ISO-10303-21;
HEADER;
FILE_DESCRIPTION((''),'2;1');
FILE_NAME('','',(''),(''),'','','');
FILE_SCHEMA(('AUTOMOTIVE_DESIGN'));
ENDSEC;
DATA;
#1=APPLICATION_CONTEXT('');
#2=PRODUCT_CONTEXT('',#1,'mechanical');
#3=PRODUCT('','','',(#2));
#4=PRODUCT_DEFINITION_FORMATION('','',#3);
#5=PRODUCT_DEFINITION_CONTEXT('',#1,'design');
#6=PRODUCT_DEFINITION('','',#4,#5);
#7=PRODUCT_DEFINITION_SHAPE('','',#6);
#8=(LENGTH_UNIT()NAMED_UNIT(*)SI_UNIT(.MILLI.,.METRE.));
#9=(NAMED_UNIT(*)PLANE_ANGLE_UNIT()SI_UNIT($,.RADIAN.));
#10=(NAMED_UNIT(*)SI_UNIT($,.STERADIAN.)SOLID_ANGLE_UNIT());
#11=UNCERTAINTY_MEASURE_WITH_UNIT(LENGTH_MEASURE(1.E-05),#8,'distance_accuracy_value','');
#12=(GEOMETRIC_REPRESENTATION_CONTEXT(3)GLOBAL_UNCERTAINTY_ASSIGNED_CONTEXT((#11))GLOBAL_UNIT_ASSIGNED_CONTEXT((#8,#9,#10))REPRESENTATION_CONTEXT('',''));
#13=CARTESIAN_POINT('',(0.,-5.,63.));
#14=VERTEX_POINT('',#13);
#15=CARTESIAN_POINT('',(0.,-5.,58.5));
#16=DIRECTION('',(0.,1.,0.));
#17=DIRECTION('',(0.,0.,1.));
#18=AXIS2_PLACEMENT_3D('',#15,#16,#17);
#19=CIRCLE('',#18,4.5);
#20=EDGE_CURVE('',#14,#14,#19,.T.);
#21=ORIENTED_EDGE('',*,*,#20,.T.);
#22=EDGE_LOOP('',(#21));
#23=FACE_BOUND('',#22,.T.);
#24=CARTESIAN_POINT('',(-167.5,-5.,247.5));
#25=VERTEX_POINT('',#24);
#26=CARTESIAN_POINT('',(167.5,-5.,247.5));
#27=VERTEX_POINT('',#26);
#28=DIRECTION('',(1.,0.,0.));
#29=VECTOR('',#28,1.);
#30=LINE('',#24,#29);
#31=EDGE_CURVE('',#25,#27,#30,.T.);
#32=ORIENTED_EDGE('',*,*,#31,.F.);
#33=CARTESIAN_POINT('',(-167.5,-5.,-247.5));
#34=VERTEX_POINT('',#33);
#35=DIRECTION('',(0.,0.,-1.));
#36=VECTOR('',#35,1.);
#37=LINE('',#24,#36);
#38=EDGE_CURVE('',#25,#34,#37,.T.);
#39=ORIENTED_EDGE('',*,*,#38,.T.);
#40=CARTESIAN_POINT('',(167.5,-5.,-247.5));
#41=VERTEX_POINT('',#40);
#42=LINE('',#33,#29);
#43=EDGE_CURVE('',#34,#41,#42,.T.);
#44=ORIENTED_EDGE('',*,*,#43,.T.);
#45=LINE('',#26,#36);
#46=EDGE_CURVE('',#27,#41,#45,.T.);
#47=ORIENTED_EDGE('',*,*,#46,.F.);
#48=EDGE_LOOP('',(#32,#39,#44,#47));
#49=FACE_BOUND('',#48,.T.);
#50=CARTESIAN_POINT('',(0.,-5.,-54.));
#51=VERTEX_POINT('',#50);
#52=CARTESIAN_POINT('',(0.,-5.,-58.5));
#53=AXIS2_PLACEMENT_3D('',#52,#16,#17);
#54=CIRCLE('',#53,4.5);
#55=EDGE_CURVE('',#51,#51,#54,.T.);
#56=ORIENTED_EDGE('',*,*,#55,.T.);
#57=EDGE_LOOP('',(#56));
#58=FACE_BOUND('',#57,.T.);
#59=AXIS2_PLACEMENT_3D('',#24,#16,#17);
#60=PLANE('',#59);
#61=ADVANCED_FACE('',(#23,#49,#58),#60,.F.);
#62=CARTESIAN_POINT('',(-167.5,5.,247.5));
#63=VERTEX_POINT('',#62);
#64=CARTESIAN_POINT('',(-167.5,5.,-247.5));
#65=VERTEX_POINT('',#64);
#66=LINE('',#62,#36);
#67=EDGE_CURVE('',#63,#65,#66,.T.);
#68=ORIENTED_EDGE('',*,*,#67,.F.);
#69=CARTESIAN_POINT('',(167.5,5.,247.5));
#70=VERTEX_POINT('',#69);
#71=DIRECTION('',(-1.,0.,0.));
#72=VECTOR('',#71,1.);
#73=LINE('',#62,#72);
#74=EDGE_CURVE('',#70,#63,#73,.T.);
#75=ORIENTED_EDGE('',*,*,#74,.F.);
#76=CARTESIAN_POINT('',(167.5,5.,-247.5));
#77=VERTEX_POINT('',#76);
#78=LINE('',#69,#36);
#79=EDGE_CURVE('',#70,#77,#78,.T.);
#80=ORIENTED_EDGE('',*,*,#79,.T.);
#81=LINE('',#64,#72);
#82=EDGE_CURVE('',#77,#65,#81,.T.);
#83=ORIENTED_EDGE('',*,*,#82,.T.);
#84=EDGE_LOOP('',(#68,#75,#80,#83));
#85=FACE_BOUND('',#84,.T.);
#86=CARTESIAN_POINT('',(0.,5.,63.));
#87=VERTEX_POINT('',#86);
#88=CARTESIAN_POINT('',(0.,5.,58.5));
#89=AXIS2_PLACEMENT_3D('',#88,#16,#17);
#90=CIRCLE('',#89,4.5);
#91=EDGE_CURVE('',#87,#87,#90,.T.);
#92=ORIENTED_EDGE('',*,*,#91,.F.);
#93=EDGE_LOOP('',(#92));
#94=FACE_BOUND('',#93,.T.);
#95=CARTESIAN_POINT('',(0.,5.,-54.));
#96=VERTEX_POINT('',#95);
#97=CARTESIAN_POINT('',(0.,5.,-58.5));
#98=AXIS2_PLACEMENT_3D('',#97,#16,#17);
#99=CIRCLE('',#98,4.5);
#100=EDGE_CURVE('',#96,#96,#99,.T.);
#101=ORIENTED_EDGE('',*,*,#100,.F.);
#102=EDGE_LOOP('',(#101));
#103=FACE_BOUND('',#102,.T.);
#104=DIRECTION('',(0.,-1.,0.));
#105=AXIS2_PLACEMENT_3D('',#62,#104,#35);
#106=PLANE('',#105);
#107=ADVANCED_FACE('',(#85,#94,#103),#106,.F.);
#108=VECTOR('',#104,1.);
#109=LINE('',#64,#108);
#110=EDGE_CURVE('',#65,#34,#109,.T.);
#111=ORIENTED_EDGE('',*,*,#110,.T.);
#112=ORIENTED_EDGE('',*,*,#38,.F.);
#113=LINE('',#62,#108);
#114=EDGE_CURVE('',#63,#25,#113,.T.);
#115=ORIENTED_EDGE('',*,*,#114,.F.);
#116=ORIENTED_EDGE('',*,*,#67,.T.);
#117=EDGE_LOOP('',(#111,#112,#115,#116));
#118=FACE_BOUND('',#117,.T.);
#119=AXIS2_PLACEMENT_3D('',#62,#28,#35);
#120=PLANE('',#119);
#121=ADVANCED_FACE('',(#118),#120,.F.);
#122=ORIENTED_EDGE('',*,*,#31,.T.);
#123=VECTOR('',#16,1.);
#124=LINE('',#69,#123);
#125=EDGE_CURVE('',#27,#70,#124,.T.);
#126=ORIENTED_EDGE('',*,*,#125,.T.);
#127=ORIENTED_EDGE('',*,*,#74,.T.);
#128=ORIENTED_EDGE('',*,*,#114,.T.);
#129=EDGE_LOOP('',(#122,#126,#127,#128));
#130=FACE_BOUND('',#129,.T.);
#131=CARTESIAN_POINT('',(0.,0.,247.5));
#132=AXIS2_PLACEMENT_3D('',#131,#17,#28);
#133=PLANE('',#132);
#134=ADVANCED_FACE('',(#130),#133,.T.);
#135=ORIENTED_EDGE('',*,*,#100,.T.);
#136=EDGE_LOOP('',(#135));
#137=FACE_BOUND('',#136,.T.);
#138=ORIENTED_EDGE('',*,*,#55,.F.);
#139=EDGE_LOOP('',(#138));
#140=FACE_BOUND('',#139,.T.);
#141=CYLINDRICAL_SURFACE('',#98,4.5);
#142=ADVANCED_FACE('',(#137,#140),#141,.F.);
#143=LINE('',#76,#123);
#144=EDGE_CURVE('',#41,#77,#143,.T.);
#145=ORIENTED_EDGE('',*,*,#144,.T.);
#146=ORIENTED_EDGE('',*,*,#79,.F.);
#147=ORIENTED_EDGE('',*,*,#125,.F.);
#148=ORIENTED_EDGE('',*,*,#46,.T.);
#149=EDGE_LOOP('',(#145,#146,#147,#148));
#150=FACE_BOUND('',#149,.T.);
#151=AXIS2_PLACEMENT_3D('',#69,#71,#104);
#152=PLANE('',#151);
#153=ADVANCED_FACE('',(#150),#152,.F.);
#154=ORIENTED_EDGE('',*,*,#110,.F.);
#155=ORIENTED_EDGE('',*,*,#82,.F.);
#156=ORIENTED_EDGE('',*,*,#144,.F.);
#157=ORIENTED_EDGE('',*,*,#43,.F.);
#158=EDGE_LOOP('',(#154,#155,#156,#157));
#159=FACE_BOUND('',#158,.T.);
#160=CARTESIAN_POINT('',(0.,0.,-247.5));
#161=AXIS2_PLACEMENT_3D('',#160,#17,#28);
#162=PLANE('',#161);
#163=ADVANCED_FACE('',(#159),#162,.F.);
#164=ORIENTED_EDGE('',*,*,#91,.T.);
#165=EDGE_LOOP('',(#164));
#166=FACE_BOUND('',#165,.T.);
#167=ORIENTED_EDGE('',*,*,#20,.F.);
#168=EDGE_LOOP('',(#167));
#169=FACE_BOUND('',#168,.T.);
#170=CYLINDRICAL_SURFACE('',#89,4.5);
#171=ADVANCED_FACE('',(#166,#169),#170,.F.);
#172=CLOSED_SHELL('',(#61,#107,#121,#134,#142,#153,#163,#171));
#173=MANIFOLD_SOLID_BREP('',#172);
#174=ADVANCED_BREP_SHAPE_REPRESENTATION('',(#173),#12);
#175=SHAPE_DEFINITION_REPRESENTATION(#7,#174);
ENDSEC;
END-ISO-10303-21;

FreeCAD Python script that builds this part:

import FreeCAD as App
import Part
import Sketcher

doc = App.newDocument("Part")
body = doc.addObject("PartDesign::Body", "Body")

sketch1 = body.newObject("Sketcher::SketchObject", "Sketch")
sketch1.AttachmentSupport = (doc.getObject("XY_Plane"), [""])
sketch1.MapMode = "FlatFace"
sketch1.addGeometry([
    Part.LineSegment(App.Vector(-167.5, 5, 0), App.Vector(-167.5, -5, 0)),
    Part.LineSegment(App.Vector(-167.5, -5, 0), App.Vector(167.5, -5, 0)),
    Part.LineSegment(App.Vector(167.5, -5, 0), App.Vector(167.5, 5, 0)),
    Part.LineSegment(App.Vector(167.5, 5, 0), App.Vector(-167.5, 5, 0)),
], False)
sketch1.addConstraint([
    Sketcher.Constraint("Coincident", 0, 2, 1, 1),
    Sketcher.Constraint("Coincident", 1, 2, 2, 1),
    Sketcher.Constraint("Coincident", 2, 2, 3, 1),
    Sketcher.Constraint("Coincident", 3, 2, 0, 1),
    Sketcher.Constraint("Vertical", 0),
    Sketcher.Constraint("Horizontal", 1),
    Sketcher.Constraint("Vertical", 2),
    Sketcher.Constraint("Horizontal", 3),
    Sketcher.Constraint("Symmetric", 0, 2, 2, 2, -1, 1),
    Sketcher.Constraint("DistanceX", 1, 1, 1, 2, 335.0),
    Sketcher.Constraint("DistanceY", 0, 2, 0, 1, 10.0),
])
pad1 = body.newObject("PartDesign::Pad", "Pad")
pad1.Profile = sketch1
pad1.Length = 495
pad1.Midplane = True

sketch2 = body.newObject("Sketcher::SketchObject", "Sketch001")
sketch2.AttachmentSupport = (doc.getObject("XZ_Plane"), [""])
sketch2.MapMode = "FlatFace"
sketch2.AttachmentOffset = App.Placement(App.Vector(0, 0, -5), App.Rotation())
sketch2.addGeometry([
    Part.Circle(App.Vector(0, -58.5, 0), App.Vector(0, 0, 1), 4.5),
    Part.Circle(App.Vector(0, 58.5, 0), App.Vector(0, 0, 1), 4.5),
], False)
sketch2.addConstraint([
    Sketcher.Constraint("Equal", 0, 1),
    Sketcher.Constraint("Symmetric", 0, 3, 1, 3, -1, 1),
    Sketcher.Constraint("PointOnObject", 0, 3, -2),
    Sketcher.Constraint("Diameter", 0, 9.0),
    Sketcher.Constraint("DistanceY", 0, 3, 1, 3, 117.0),
])
doc.recompute()
hole = body.newObject("PartDesign::Hole", "Hole")
hole.Profile = sketch2
hole.ThreadType = "None"
hole.Diameter = 9
hole.DepthType = "ThroughAll"
hole.Reversed = True

doc.recompute()
